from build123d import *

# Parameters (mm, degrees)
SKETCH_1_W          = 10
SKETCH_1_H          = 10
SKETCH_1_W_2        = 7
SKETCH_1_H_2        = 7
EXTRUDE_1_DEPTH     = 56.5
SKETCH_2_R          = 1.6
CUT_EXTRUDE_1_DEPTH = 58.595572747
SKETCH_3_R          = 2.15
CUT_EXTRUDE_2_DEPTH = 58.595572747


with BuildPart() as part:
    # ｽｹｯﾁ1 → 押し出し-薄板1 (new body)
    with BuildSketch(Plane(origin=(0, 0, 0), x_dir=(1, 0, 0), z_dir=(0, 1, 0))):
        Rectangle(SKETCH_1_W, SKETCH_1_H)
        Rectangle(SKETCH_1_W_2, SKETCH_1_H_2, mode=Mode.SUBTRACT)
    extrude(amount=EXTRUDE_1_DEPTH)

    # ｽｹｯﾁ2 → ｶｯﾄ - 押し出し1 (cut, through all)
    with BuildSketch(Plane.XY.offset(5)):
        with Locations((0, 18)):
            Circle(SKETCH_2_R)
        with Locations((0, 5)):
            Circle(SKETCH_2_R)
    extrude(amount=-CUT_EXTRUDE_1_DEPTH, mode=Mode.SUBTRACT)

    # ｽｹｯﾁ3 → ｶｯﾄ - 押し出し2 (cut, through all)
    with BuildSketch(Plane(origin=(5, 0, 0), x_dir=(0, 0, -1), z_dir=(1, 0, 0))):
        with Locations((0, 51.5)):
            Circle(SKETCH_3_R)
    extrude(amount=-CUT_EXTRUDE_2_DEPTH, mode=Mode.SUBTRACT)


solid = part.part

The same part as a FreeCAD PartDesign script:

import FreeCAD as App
import Part
import Sketcher

doc = App.newDocument("Part")
body = doc.addObject("PartDesign::Body", "Body")

# Sketch on XZ plane
sketch1 = body.newObject("Sketcher::SketchObject", "Sketch")
sketch1.AttachmentSupport = (doc.getObject("XZ_Plane"), [""])
sketch1.MapMode = "FlatFace"
sketch1.addGeometry(Part.LineSegment(App.Vector(-5, -5, 0), App.Vector(-5, 5, 0)), False)
sketch1.addGeometry(Part.LineSegment(App.Vector(-5, 5, 0), App.Vector(5, 5, 0)), False)
sketch1.addGeometry(Part.LineSegment(App.Vector(5, 5, 0), App.Vector(5, -5, 0)), False)
sketch1.addGeometry(Part.LineSegment(App.Vector(5, -5, 0), App.Vector(-5, -5, 0)), False)
sketch1.addGeometry(Part.LineSegment(App.Vector(3.5, 3.5, 0), App.Vector(-3.5, 3.5, 0)), False)
sketch1.addGeometry(Part.LineSegment(App.Vector(-3.5, 3.5, 0), App.Vector(-3.5, -3.5, 0)), False)
sketch1.addGeometry(Part.LineSegment(App.Vector(-3.5, -3.5, 0), App.Vector(3.5, -3.5, 0)), False)
sketch1.addGeometry(Part.LineSegment(App.Vector(3.5, -3.5, 0), App.Vector(3.5, 3.5, 0)), False)
sketch1.addConstraint(Sketcher.Constraint("Coincident", 0, 2, 1, 1))
sketch1.addConstraint(Sketcher.Constraint("Coincident", 1, 2, 2, 1))
sketch1.addConstraint(Sketcher.Constraint("Coincident", 2, 2, 3, 1))
sketch1.addConstraint(Sketcher.Constraint("Coincident", 3, 2, 0, 1))
sketch1.addConstraint(Sketcher.Constraint("Coincident", 4, 2, 5, 1))
sketch1.addConstraint(Sketcher.Constraint("Coincident", 5, 2, 6, 1))
sketch1.addConstraint(Sketcher.Constraint("Coincident", 6, 2, 7, 1))
sketch1.addConstraint(Sketcher.Constraint("Coincident", 7, 2, 4, 1))
sketch1.addConstraint(Sketcher.Constraint("Vertical", 0))
sketch1.addConstraint(Sketcher.Constraint("Horizontal", 1))
sketch1.addConstraint(Sketcher.Constraint("Vertical", 2))
sketch1.addConstraint(Sketcher.Constraint("Horizontal", 3))
sketch1.addConstraint(Sketcher.Constraint("Horizontal", 4))
sketch1.addConstraint(Sketcher.Constraint("Vertical", 5))
sketch1.addConstraint(Sketcher.Constraint("Horizontal", 6))
sketch1.addConstraint(Sketcher.Constraint("Vertical", 7))
sketch1.addConstraint(Sketcher.Constraint("Symmetric", 0, 2, 2, 2, -1, 1))
sketch1.addConstraint(Sketcher.Constraint("Symmetric", 4, 2, 6, 2, -1, 1))
sketch1.addConstraint(Sketcher.Constraint("Equal", 3, 0))
sketch1.addConstraint(Sketcher.Constraint("Equal", 6, 5))
sketch1.addConstraint(Sketcher.Constraint("DistanceX", 1, 1, 1, 2, 10.0))
sketch1.addConstraint(Sketcher.Constraint("DistanceX", 4, 2, 4, 1, 7.0))
pad1 = body.newObject("PartDesign::Pad", "Pad")
pad1.Profile = sketch1
pad1.Length = 56.5
pad1.Reversed = True

# Sketch on XY plane
sketch2 = body.newObject("Sketcher::SketchObject", "Sketch001")
sketch2.AttachmentSupport = (doc.getObject("XY_Plane"), [""])
sketch2.MapMode = "FlatFace"
sketch2.AttachmentOffset = App.Placement(App.Vector(0, 0, 5), App.Rotation())
sketch2.addGeometry(Part.Circle(App.Vector(0, 18, 0), App.Vector(0, 0, 1), 1.6), False)
sketch2.addGeometry(Part.Circle(App.Vector(0, 5, 0), App.Vector(0, 0, 1), 1.6), False)
sketch2.addConstraint(Sketcher.Constraint("Equal", 0, 1))
sketch2.addConstraint(Sketcher.Constraint("PointOnObject", 0, 3, -2))
sketch2.addConstraint(Sketcher.Constraint("PointOnObject", 1, 3, -2))
sketch2.addConstraint(Sketcher.Constraint("Diameter", 0, 3.2))
sketch2.addConstraint(Sketcher.Constraint("DistanceY", -1, 1, 0, 3, 18.0))
sketch2.addConstraint(Sketcher.Constraint("DistanceY", -1, 1, 1, 3, 5.0))
pocket1 = body.newObject("PartDesign::Pocket", "Pocket")
pocket1.Profile = sketch2
pocket1.Type = "ThroughAll"

# Sketch on YZ plane
sketch3 = body.newObject("Sketcher::SketchObject", "Sketch002")
sketch3.AttachmentSupport = (doc.getObject("YZ_Plane"), [""])
sketch3.MapMode = "FlatFace"
sketch3.AttachmentOffset = App.Placement(App.Vector(0, 0, 5), App.Rotation())
sketch3.addGeometry(Part.Circle(App.Vector(51.5, 0, 0), App.Vector(0, 0, 1), 2.15), False)
sketch3.addConstraint(Sketcher.Constraint("PointOnObject", 0, 3, -1))
sketch3.addConstraint(Sketcher.Constraint("Diameter", 0, 4.3))
sketch3.addConstraint(Sketcher.Constraint("DistanceX", -1, 1, 0, 3, 51.5))
pocket2 = body.newObject("PartDesign::Pocket", "Pocket001")
pocket2.Profile = sketch3
pocket2.Type = "ThroughAll"

doc.recompute()
